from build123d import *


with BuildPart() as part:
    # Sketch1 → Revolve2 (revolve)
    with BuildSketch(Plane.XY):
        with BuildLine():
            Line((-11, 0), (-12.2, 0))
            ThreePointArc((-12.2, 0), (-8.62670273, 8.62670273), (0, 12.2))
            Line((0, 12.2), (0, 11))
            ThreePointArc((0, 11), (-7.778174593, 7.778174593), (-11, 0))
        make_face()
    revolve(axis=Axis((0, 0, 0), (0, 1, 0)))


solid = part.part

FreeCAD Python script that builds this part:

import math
import FreeCAD as App
import Part
import Sketcher
from FreeCAD import Vector

doc = App.newDocument("Part")
body = doc.addObject("PartDesign::Body", "Body")

sketch1 = doc.addObject("Sketcher::SketchObject", "Sketch")
body.addObject(sketch1)
sketch1.AttachmentSupport = (doc.XY_Plane, [""])
sketch1.MapMode = "FlatFace"
sketch1.addGeometry(Part.LineSegment(Vector(-12.2, 0, 0), Vector(-11, 0, 0)), False)
sketch1.addGeometry(Part.ArcOfCircle(Part.Circle(Vector(0, 0, 0), Vector(0, 0, 1), 11), math.radians(90), math.radians(180)), False)
sketch1.addGeometry(Part.LineSegment(Vector(0, 11, 0), Vector(0, 12.2, 0)), False)
sketch1.addGeometry(Part.ArcOfCircle(Part.Circle(Vector(0, 0, 0), Vector(0, 0, 1), 12.2), math.radians(90), math.radians(180)), False)
sketch1.addConstraint(Sketcher.Constraint("Coincident", 0, 2, 1, 2))
sketch1.addConstraint(Sketcher.Constraint("Coincident", 1, 1, 2, 1))
sketch1.addConstraint(Sketcher.Constraint("Coincident", 2, 2, 3, 1))
sketch1.addConstraint(Sketcher.Constraint("Coincident", 3, 2, 0, 1))
sketch1.addConstraint(Sketcher.Constraint("Horizontal", 0))
sketch1.addConstraint(Sketcher.Constraint("Vertical", 2))
sketch1.addConstraint(Sketcher.Constraint("Coincident", 1, 3, -1, 1))
sketch1.addConstraint(Sketcher.Constraint("Coincident", 3, 3, -1, 1))
sketch1.addConstraint(Sketcher.Constraint("PointOnObject", 0, 2, -1))
sketch1.addConstraint(Sketcher.Constraint("PointOnObject", 1, 1, -2))
sketch1.addConstraint(Sketcher.Constraint("Radius", 1, 11.0))
sketch1.addConstraint(Sketcher.Constraint("Radius", 3, 12.2))
revolution = doc.addObject("PartDesign::Revolution", "Revolution")
body.addObject(revolution)
revolution.Profile = sketch1
revolution.ReferenceAxis = (sketch1, ["V_Axis"])
revolution.Angle = 360

doc.recompute()
